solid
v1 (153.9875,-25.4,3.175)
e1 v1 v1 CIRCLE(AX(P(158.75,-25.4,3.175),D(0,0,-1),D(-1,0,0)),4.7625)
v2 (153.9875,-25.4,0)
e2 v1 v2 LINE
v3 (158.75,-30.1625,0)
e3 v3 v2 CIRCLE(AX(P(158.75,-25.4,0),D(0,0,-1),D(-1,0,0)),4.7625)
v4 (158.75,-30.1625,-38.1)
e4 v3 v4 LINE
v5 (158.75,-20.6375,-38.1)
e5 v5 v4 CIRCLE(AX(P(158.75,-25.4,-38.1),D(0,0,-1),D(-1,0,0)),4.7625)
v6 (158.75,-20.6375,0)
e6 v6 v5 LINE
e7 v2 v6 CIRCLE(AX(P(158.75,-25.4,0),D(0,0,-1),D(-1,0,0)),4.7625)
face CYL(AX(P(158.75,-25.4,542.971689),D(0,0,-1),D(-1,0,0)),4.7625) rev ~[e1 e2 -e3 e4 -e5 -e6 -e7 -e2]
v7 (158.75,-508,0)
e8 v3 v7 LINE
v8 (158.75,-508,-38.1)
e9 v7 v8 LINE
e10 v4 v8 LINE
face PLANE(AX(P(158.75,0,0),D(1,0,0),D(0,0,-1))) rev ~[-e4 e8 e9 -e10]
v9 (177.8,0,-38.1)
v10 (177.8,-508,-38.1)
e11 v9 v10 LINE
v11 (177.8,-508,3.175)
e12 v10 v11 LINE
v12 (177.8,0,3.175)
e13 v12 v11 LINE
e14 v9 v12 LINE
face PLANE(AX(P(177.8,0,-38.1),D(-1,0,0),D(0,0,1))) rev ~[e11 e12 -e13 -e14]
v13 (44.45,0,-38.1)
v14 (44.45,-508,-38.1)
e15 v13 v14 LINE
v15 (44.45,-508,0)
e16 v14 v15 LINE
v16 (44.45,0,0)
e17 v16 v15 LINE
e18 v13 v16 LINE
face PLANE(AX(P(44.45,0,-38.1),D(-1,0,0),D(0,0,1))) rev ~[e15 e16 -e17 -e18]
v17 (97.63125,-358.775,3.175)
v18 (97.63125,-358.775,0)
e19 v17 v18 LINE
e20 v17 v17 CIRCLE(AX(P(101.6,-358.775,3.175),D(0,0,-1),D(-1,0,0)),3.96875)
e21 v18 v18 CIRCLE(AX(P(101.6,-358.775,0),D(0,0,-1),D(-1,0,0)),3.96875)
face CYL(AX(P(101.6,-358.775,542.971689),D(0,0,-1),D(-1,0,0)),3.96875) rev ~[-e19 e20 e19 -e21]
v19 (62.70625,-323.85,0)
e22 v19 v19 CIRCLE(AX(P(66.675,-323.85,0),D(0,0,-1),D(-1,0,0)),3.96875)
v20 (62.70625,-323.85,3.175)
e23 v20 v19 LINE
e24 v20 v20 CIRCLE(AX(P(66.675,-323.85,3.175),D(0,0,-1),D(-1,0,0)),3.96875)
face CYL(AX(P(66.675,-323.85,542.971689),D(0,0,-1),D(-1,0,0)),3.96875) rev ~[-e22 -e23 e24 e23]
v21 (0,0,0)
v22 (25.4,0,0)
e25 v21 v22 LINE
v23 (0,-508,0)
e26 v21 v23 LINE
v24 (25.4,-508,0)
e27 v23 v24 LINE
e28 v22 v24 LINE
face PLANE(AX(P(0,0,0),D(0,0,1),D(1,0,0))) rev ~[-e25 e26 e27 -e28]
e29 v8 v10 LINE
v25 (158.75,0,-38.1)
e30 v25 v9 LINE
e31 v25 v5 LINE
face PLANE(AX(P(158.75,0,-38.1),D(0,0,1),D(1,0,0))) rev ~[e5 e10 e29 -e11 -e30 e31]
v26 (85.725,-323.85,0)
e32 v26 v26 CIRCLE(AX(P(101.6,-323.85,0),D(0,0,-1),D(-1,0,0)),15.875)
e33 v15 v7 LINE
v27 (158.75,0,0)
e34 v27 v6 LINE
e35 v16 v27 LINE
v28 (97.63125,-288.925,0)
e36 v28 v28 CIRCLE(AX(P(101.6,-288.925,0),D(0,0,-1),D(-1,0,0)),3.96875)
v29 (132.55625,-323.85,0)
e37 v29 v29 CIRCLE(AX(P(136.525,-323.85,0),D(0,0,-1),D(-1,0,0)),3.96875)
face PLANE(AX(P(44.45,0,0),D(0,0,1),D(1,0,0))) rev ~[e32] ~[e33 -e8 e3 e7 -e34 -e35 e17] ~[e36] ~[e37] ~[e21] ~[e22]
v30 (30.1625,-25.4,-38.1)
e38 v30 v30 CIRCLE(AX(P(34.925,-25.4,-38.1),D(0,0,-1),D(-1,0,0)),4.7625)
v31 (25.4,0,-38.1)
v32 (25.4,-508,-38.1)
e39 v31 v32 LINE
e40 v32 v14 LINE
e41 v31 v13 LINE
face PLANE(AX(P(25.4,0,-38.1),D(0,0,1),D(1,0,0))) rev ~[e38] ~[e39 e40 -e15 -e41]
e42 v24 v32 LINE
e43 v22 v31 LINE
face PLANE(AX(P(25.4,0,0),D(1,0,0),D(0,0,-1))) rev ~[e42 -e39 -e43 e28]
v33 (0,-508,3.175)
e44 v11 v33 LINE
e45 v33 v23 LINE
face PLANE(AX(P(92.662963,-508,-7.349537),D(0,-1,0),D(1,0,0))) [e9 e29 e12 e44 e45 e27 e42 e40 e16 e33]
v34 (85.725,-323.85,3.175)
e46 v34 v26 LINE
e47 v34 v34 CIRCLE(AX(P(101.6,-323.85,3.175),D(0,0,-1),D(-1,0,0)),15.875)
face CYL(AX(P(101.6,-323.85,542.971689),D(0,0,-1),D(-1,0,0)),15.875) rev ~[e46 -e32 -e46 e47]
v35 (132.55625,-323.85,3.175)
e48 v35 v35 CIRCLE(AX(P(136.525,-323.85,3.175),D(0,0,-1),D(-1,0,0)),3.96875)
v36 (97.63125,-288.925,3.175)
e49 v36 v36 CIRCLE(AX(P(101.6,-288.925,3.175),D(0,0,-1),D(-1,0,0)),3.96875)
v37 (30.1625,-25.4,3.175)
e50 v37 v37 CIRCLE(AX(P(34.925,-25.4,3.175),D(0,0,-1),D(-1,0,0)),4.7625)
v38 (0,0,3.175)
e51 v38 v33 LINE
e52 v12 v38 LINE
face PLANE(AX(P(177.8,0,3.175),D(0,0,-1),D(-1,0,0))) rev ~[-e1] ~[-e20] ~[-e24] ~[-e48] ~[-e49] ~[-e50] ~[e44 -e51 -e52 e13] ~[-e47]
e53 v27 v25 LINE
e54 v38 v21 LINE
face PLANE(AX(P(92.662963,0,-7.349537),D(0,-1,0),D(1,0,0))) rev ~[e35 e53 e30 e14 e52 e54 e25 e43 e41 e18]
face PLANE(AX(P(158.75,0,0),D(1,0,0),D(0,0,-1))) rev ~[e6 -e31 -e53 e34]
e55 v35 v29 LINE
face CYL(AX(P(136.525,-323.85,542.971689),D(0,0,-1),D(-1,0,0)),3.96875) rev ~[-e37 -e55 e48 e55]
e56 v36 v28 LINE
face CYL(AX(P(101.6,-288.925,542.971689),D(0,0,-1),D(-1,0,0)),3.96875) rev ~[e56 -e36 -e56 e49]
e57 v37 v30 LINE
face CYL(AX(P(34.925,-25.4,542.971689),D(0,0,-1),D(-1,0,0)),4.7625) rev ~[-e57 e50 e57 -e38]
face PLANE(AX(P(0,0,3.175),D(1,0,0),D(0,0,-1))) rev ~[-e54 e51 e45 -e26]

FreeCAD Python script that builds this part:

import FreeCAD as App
import Part
import Sketcher
Q = App.Units.Quantity

doc = App.newDocument("Part")
body = doc.addObject("PartDesign::Body", "Body")

# Sketch on XZ plane
sketch1 = body.newObject("Sketcher::SketchObject", "Sketch")
sketch1.AttachmentSupport = (doc.getObject("XZ_Plane"), [""])
sketch1.MapMode = "FlatFace"
sketch1.addGeometry([
    Part.LineSegment(App.Vector(0, 3.2, 0), App.Vector(0, 0, 0)),  # 0
    Part.LineSegment(App.Vector(0, 0, 0), App.Vector(25.4, 0, 0)),  # 1
    Part.LineSegment(App.Vector(25.4, 0, 0), App.Vector(25.4, -38.1, 0)),  # 2
    Part.LineSegment(App.Vector(25.4, -38.1, 0), App.Vector(44.5, -38.1, 0)),  # 3
    Part.LineSegment(App.Vector(44.5, -38.1, 0), App.Vector(44.5, 0, 0)),  # 4
    Part.LineSegment(App.Vector(44.5, 0, 0), App.Vector(158.8, 0, 0)),  # 5
    Part.LineSegment(App.Vector(158.8, 0, 0), App.Vector(158.8, -38.1, 0)),  # 6
    Part.LineSegment(App.Vector(158.8, -38.1, 0), App.Vector(177.8, -38.1, 0)),  # 7
    Part.LineSegment(App.Vector(177.8, -38.1, 0), App.Vector(177.8, 3.2, 0)),  # 8
    Part.LineSegment(App.Vector(177.8, 3.2, 0), App.Vector(0, 3.2, 0)),  # 9
], False)
sketch1.addConstraint([
    Sketcher.Constraint("Coincident", 0, 2, 1, 1),
    Sketcher.Constraint("Coincident", 1, 2, 2, 1),
    Sketcher.Constraint("Coincident", 2, 2, 3, 1),
    Sketcher.Constraint("Coincident", 3, 2, 4, 1),
    Sketcher.Constraint("Coincident", 4, 2, 5, 1),
    Sketcher.Constraint("Coincident", 5, 2, 6, 1),
    Sketcher.Constraint("Coincident", 6, 2, 7, 1),
    Sketcher.Constraint("Coincident", 7, 2, 8, 1),
    Sketcher.Constraint("Coincident", 8, 2, 9, 1),
    Sketcher.Constraint("Coincident", 9, 2, 0, 1),
    Sketcher.Constraint("Vertical", 0),
    Sketcher.Constraint("Horizontal", 1),
    Sketcher.Constraint("Vertical", 2),
    Sketcher.Constraint("Horizontal", 3),
    Sketcher.Constraint("Vertical", 4),
    Sketcher.Constraint("Horizontal", 5),
    Sketcher.Constraint("Vertical", 6),
    Sketcher.Constraint("Horizontal", 7),
    Sketcher.Constraint("Vertical", 8),
    Sketcher.Constraint("Horizontal", 9),
    Sketcher.Constraint("Coincident", 0, 2, -1, 1),
    Sketcher.Constraint("PointOnObject", 4, 2, -1),
    Sketcher.Constraint("Horizontal", 3, 2, 6, 2),
    Sketcher.Constraint("Equal", 3, 7),
    Sketcher.Constraint("DistanceX", 1, 1, 1, 2, Q("1 in")),
    Sketcher.Constraint("DistanceX", 9, 2, 9, 1, Q("7 in")),
    Sketcher.Constraint("DistanceX", 5, 1, 5, 2, Q("4.5 in")),
    Sketcher.Constraint("DistanceY", 2, 2, 2, 1, Q("1.5 in")),
    Sketcher.Constraint("DistanceY", 0, 2, 0, 1, Q("0.125 in")),
])
pad1 = body.newObject("PartDesign::Pad", "Pad")
pad1.Profile = sketch1
pad1.Length = Q("20 in")

# Sketch on XY plane
sketch2 = body.newObject("Sketcher::SketchObject", "Sketch001")
sketch2.AttachmentSupport = (doc.getObject("XY_Plane"), [""])
sketch2.MapMode = "FlatFace"
sketch2.AttachmentOffset = App.Placement(App.Vector(0, 0, 0.125 * 25.4), App.Rotation())
sketch2.addGeometry(Part.Circle(App.Vector(102, -324, 0), App.Vector(0, 0, 1), 16), False)
sketch2.addConstraint([
    Sketcher.Constraint("Diameter", 0, Q("1.25 in")),
    Sketcher.Constraint("DistanceX", -1, 1, 0, 3, Q("4 in")),
    Sketcher.Constraint("DistanceY", 0, 3, -1, 1, Q("12.75 in")),
])
doc.recompute()
hole = body.newObject("PartDesign::Hole", "Hole")
hole.Profile = sketch2
hole.ThreadType = "None"
hole.Diameter = Q("1.25 in")
hole.DepthType = "ThroughAll"

# Sketch on XY plane
sketch3 = body.newObject("Sketcher::SketchObject", "Sketch002")
sketch3.AttachmentSupport = (doc.getObject("XY_Plane"), [""])
sketch3.MapMode = "FlatFace"
sketch3.AttachmentOffset = App.Placement(App.Vector(0, 0, 0.125 * 25.4), App.Rotation())
sketch3.addGeometry([
    Part.Circle(App.Vector(101.6, -288.9, 0), App.Vector(0, 0, 1), 4),
    Part.Circle(App.Vector(136.5, -323.9, 0), App.Vector(0, 0, 1), 4),
    Part.Circle(App.Vector(101.6, -358.8, 0), App.Vector(0, 0, 1), 4),
    Part.Circle(App.Vector(66.7, -323.9, 0), App.Vector(0, 0, 1), 4),
], False)
sketch3.addConstraint([
    Sketcher.Constraint("Equal", 0, 1),
    Sketcher.Constraint("Equal", 1, 2),
    Sketcher.Constraint("Equal", 2, 3),
    Sketcher.Constraint("Horizontal", 1, 3, 3, 3),
    Sketcher.Constraint("Vertical", 0, 3, 2, 3),
    Sketcher.Constraint("Diameter", 0, Q("0.3125 in")),
    Sketcher.Constraint("DistanceX", -1, 1, 0, 3, Q("4 in")),
    Sketcher.Constraint("DistanceY", 1, 3, -1, 1, Q("12.75 in")),
    Sketcher.Constraint("DistanceY", 2, 3, 0, 3, Q("2.75 in")),
    Sketcher.Constraint("DistanceX", 3, 3, 1, 3, Q("2.75 in")),
    Sketcher.Constraint("DistanceY", 0, 3, -1, 1, Q("11.375 in")),
    Sketcher.Constraint("DistanceX", -1, 1, 1, 3, Q("5.375 in")),
])
doc.recompute()
hole2 = body.newObject("PartDesign::Hole", "Hole001")
hole2.Profile = sketch3
hole2.ThreadType = "None"
hole2.Diameter = Q("0.3125 in")
hole2.DepthType = "ThroughAll"

# Sketch on XY plane
sketch4 = body.newObject("Sketcher::SketchObject", "Sketch003")
sketch4.AttachmentSupport = (doc.getObject("XY_Plane"), [""])
sketch4.MapMode = "FlatFace"
sketch4.AttachmentOffset = App.Placement(App.Vector(0, 0, 0.125 * 25.4), App.Rotation())
sketch4.addGeometry([
    Part.Circle(App.Vector(34.9, -25.4, 0), App.Vector(0, 0, 1), 4.8),
    Part.Circle(App.Vector(158.8, -25.4, 0), App.Vector(0, 0, 1), 4.8),
], False)
sketch4.addConstraint([
    Sketcher.Constraint("Equal", 0, 1),
    Sketcher.Constraint("Horizontal", 0, 3, 1, 3),
    Sketcher.Constraint("Diameter", 0, Q("0.375 in")),
    Sketcher.Constraint("DistanceY", 0, 3, -1, 1, Q("1 in")),
    Sketcher.Constraint("DistanceX", -1, 1, 1, 3, Q("6.25 in")),
    Sketcher.Constraint("DistanceX", -1, 1, 0, 3, Q("1.375 in")),
])
doc.recompute()
hole3 = body.newObject("PartDesign::Hole", "Hole002")
hole3.Profile = sketch4
hole3.ThreadType = "None"
hole3.Diameter = Q("0.375 in")
hole3.DepthType = "ThroughAll"

doc.recompute()
